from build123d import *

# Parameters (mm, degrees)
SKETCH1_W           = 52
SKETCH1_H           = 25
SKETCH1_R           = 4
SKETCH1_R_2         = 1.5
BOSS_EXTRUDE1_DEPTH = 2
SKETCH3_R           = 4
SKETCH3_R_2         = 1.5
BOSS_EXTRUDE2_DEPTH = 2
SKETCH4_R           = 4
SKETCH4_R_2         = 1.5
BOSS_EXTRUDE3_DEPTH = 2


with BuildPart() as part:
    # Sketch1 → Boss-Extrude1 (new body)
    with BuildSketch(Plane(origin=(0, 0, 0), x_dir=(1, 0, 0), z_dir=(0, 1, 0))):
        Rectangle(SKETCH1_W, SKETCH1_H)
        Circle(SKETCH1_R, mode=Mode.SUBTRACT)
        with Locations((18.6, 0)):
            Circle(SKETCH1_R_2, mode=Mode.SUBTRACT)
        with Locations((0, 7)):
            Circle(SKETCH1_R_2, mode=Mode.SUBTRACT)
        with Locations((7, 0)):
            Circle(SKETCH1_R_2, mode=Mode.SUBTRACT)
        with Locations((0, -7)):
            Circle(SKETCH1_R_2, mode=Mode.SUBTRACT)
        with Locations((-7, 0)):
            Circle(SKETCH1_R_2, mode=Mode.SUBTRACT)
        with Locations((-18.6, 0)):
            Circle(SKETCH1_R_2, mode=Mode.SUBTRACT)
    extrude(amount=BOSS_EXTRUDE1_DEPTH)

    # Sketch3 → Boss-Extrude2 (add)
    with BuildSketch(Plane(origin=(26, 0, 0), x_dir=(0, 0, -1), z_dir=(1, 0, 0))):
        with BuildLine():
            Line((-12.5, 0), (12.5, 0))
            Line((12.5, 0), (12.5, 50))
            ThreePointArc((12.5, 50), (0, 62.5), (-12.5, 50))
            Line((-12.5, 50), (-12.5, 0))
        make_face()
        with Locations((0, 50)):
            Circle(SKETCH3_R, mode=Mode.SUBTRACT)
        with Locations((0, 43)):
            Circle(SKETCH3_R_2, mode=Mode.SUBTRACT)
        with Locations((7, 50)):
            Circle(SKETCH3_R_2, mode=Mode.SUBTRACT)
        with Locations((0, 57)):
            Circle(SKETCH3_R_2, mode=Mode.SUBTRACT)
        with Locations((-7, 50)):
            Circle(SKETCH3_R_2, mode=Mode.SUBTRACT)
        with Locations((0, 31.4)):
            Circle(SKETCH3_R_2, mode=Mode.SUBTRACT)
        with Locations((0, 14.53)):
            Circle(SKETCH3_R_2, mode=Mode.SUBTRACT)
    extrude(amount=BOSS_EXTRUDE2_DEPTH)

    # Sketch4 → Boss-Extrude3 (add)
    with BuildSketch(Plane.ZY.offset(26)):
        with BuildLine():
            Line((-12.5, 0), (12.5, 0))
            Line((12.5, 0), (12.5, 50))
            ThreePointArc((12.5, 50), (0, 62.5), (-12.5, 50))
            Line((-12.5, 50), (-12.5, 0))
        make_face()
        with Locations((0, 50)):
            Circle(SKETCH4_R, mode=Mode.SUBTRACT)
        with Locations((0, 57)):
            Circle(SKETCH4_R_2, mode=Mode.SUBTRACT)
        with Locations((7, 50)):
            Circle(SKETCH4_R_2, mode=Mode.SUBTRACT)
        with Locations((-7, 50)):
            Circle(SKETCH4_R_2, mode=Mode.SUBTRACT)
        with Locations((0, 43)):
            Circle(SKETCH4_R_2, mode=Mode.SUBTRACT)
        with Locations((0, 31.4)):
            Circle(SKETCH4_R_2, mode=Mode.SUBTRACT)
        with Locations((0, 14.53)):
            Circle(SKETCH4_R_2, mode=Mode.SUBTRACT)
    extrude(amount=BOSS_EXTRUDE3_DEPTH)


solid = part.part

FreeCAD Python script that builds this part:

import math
import FreeCAD as App
import Part
import Sketcher
from FreeCAD import Vector


def add_polygon(sketch, points):
    """Adds a closed chain of lines whose ends are joined by coincident constraints."""
    first, n = sketch.GeometryCount, len(points)
    for a, b in zip(points, points[1:] + points[:1]):
        sketch.addGeometry(Part.LineSegment(App.Vector(*a, 0), App.Vector(*b, 0)), False)
    for i in range(n):
        sketch.addConstraint(Sketcher.Constraint("Coincident", first + i, 2, first + (i + 1) % n, 1))

doc = App.newDocument("Part")
params = doc.addObject("Spreadsheet::Sheet", "Params")
for row, (alias, value) in enumerate([
    ("sketch1_diameter", "3 mm"),
    ("sketch1_diameter2", "8 mm"),
    ("sketch1_width", "52 mm"),
    ("sketch1_height", "25 mm"),
    ("pad1_length", "2 mm"),
    ("sketch2_diameter", "3 mm"),
    ("sketch2_diameter2", "8 mm"),
    ("sketch2_radius", "12.5 mm"),
    ("sketch2_width", "50 mm"),
    ("pad2_length", "2 mm"),
    ("sketch3_diameter", "3 mm"),
    ("sketch3_diameter2", "8 mm"),
    ("sketch3_radius", "12.5 mm"),
    ("sketch3_width", "50 mm"),
    ("pad3_length", "2 mm"),
], start=1):
    params.set(f"A{row}", alias)
    params.set(f"B{row}", "=" + value)
    params.setAlias(f"B{row}", alias)

body = doc.addObject("PartDesign::Body", "Body")

# Sketch on XZ plane
sketch1 = body.newObject("Sketcher::SketchObject", "Sketch")
sketch1.AttachmentSupport = (doc.getObject("XZ_Plane"), [""])
sketch1.MapMode = "FlatFace"
add_polygon(sketch1, [(-26, -12.5), (-26, 12.5), (26, 12.5), (26, -12.5)])  # lines 0-3
sketch1.addGeometry(Part.Circle(Vector(0, 7, 0), Vector(0, 0, 1), 1.5), False)  # 4
sketch1.addGeometry(Part.Circle(Vector(-18.6, 0, 0), Vector(0, 0, 1), 1.5), False)  # 5
sketch1.addGeometry(Part.Circle(Vector(-7, 0, 0), Vector(0, 0, 1), 1.5), False)  # 6
sketch1.addGeometry(Part.Circle(Vector(0, 0, 0), Vector(0, 0, 1), 4), False)  # 7
sketch1.addGeometry(Part.Circle(Vector(7, 0, 0), Vector(0, 0, 1), 1.5), False)  # 8
sketch1.addGeometry(Part.Circle(Vector(18.6, 0, 0), Vector(0, 0, 1), 1.5), False)  # 9
sketch1.addGeometry(Part.Circle(Vector(0, -7, 0), Vector(0, 0, 1), 1.5), False)  # 10
sketch1.addConstraint([
    Sketcher.Constraint("Vertical", 0),
    Sketcher.Constraint("Horizontal", 1),
    Sketcher.Constraint("Vertical", 2),
    Sketcher.Constraint("Horizontal", 3),
    Sketcher.Constraint("Coincident", 7, 3, -1, 1),
    Sketcher.Constraint("Equal", 4, 5),
    Sketcher.Constraint("Equal", 5, 6),
    Sketcher.Constraint("Equal", 6, 8),
    Sketcher.Constraint("Equal", 8, 9),
    Sketcher.Constraint("Equal", 9, 10),
    Sketcher.Constraint("Symmetric", 6, 3, 8, 3, -1, 1),
    Sketcher.Constraint("Symmetric", 5, 3, 9, 3, -1, 1),
    Sketcher.Constraint("Symmetric", 4, 3, 10, 3, -1, 1),
    Sketcher.Constraint("Symmetric", 0, 2, 2, 2, -1, 1),
    Sketcher.Constraint("PointOnObject", 4, 3, -2),
    Sketcher.Constraint("PointOnObject", 5, 3, -1),
    Sketcher.Constraint("PointOnObject", 6, 3, -1),
    Sketcher.Constraint("Diameter", 4, 3.0),
    Sketcher.Constraint("Diameter", 7, 8.0),
    Sketcher.Constraint("DistanceX", 1, 1, 1, 2, 52.0),
    Sketcher.Constraint("DistanceY", 0, 1, 0, 2, 25.0),
    Sketcher.Constraint("DistanceY", -1, 1, 4, 3, 7.0),
    Sketcher.Constraint("DistanceX", 6, 3, -1, 1, 7.0),
    Sketcher.Constraint("DistanceX", 5, 3, -1, 1, 18.6),
])
sketch1.setExpression("Constraints[21]", "Params.sketch1_diameter")
sketch1.setExpression("Constraints[22]", "Params.sketch1_diameter2")
sketch1.setExpression("Constraints[23]", "Params.sketch1_width")
sketch1.setExpression("Constraints[24]", "Params.sketch1_height")
pad1 = body.newObject("PartDesign::Pad", "Pad")
pad1.Profile = sketch1
pad1.setExpression("Length", "Params.pad1_length")
pad1.Reversed = True

# Sketch on YZ plane
sketch2 = body.newObject("Sketcher::SketchObject", "Sketch001")
sketch2.AttachmentSupport = (doc.getObject("YZ_Plane"), [""])
sketch2.MapMode = "FlatFace"
sketch2.AttachmentOffset = App.Placement(Vector(0, 0, 26), App.Rotation())
sketch2.addGeometry([
    Part.LineSegment(Vector(0, 12.5, 0), Vector(0, -12.5, 0)),  # 0
    Part.LineSegment(Vector(0, -12.5, 0), Vector(50, -12.5, 0)),  # 1
    Part.ArcOfCircle(Part.Circle(Vector(50, 0, 0), Vector(0, 0, 1), 12.5), math.radians(-90), math.radians(90)),  # 2
    Part.LineSegment(Vector(50, 12.5, 0), Vector(0, 12.5, 0)),  # 3
    Part.Circle(Vector(14.53, 0, 0), Vector(0, 0, 1), 1.5),  # 4
    Part.Circle(Vector(31.4, 0, 0), Vector(0, 0, 1), 1.5),  # 5
    Part.Circle(Vector(50, 7, 0), Vector(0, 0, 1), 1.5),  # 6
    Part.Circle(Vector(43, 0, 0), Vector(0, 0, 1), 1.5),  # 7
    Part.Circle(Vector(50, 0, 0), Vector(0, 0, 1), 4),  # 8
    Part.Circle(Vector(57, 0, 0), Vector(0, 0, 1), 1.5),  # 9
    Part.Circle(Vector(50, -7, 0), Vector(0, 0, 1), 1.5),  # 10
], False)
sketch2.addConstraint([
    Sketcher.Constraint("Coincident", 0, 2, 1, 1),
    Sketcher.Constraint("Tangent", 1, 2, 2, 1),
    Sketcher.Constraint("Tangent", 2, 2, 3, 1),
    Sketcher.Constraint("Coincident", 3, 2, 0, 1),
    Sketcher.Constraint("Vertical", 0),
    Sketcher.Constraint("Horizontal", 1),
    Sketcher.Constraint("Horizontal", 3),
    Sketcher.Constraint("Coincident", 8, 3, 2, 3),
    Sketcher.Constraint("Equal", 4, 5),
    Sketcher.Constraint("Equal", 5, 6),
    Sketcher.Constraint("Equal", 6, 7),
    Sketcher.Constraint("Equal", 7, 9),
    Sketcher.Constraint("Equal", 9, 10),
    Sketcher.Constraint("Symmetric", 0, 2, 3, 2, -1, 1),
    Sketcher.Constraint("Symmetric", 6, 3, 10, 3, -1),
    Sketcher.Constraint("PointOnObject", 4, 3, -1),
    Sketcher.Constraint("PointOnObject", 5, 3, -1),
    Sketcher.Constraint("PointOnObject", 7, 3, -1),
    Sketcher.Constraint("PointOnObject", 9, 3, -1),
    Sketcher.Constraint("Vertical", 2, 3, 6, 3),
    Sketcher.Constraint("Diameter", 4, 3.0),
    Sketcher.Constraint("Diameter", 8, 8.0),
    Sketcher.Constraint("Radius", 2, 12.5),
    Sketcher.Constraint("DistanceX", 1, 1, 1, 2, 50.0),
    Sketcher.Constraint("DistanceY", -1, 1, 6, 3, 7.0),
    Sketcher.Constraint("DistanceX", -1, 1, 7, 3, 43.0),
    Sketcher.Constraint("DistanceX", -1, 1, 9, 3, 57.0),
    Sketcher.Constraint("DistanceX", -1, 1, 5, 3, 31.4),
    Sketcher.Constraint("DistanceX", -1, 1, 4, 3, 14.53),
])
sketch2.setExpression("Constraints[20]", "Params.sketch2_diameter")
sketch2.setExpression("Constraints[21]", "Params.sketch2_diameter2")
sketch2.setExpression("Constraints[22]", "Params.sketch2_radius")
sketch2.setExpression("Constraints[23]", "Params.sketch2_width")
pad2 = body.newObject("PartDesign::Pad", "Pad001")
pad2.Profile = sketch2
pad2.setExpression("Length", "Params.pad2_length")

# Sketch on YZ plane
sketch3 = body.newObject("Sketcher::SketchObject", "Sketch002")
sketch3.AttachmentSupport = (doc.getObject("YZ_Plane"), [""])
sketch3.MapMode = "FlatFace"
sketch3.AttachmentOffset = App.Placement(Vector(0, 0, -26), App.Rotation())
sketch3.addGeometry([
    Part.LineSegment(Vector(0, -12.5, 0), Vector(0, 12.5, 0)),  # 0
    Part.LineSegment(Vector(0, 12.5, 0), Vector(50, 12.5, 0)),  # 1
    Part.ArcOfCircle(Part.Circle(Vector(50, 0, 0), Vector(0, 0, 1), 12.5), math.radians(-90), math.radians(90)),  # 2
    Part.LineSegment(Vector(50, -12.5, 0), Vector(0, -12.5, 0)),  # 3
    Part.Circle(Vector(14.53, 0, 0), Vector(0, 0, 1), 1.5),  # 4
    Part.Circle(Vector(31.4, 0, 0), Vector(0, 0, 1), 1.5),  # 5
    Part.Circle(Vector(50, -7, 0), Vector(0, 0, 1), 1.5),  # 6
    Part.Circle(Vector(43, 0, 0), Vector(0, 0, 1), 1.5),  # 7
    Part.Circle(Vector(50, 0, 0), Vector(0, 0, 1), 4),  # 8
    Part.Circle(Vector(57, 0, 0), Vector(0, 0, 1), 1.5),  # 9
    Part.Circle(Vector(50, 7, 0), Vector(0, 0, 1), 1.5),  # 10
], False)
sketch3.addConstraint([
    Sketcher.Constraint("Coincident", 0, 2, 1, 1),
    Sketcher.Constraint("Tangent", 1, 2, 2, 2),
    Sketcher.Constraint("Tangent", 2, 1, 3, 1),
    Sketcher.Constraint("Coincident", 3, 2, 0, 1),
    Sketcher.Constraint("Vertical", 0),
    Sketcher.Constraint("Horizontal", 1),
    Sketcher.Constraint("Horizontal", 3),
    Sketcher.Constraint("Coincident", 8, 3, 2, 3),
    Sketcher.Constraint("Equal", 4, 5),
    Sketcher.Constraint("Equal", 5, 6),
    Sketcher.Constraint("Equal", 6, 7),
    Sketcher.Constraint("Equal", 7, 9),
    Sketcher.Constraint("Equal", 9, 10),
    Sketcher.Constraint("Symmetric", 0, 2, 3, 2, -1, 1),
    Sketcher.Constraint("Symmetric", 6, 3, 10, 3, -1),
    Sketcher.Constraint("PointOnObject", 4, 3, -1),
    Sketcher.Constraint("PointOnObject", 5, 3, -1),
    Sketcher.Constraint("PointOnObject", 7, 3, -1),
    Sketcher.Constraint("PointOnObject", 9, 3, -1),
    Sketcher.Constraint("Vertical", 2, 3, 6, 3),
    Sketcher.Constraint("Diameter", 4, 3.0),
    Sketcher.Constraint("Diameter", 8, 8.0),
    Sketcher.Constraint("Radius", 2, 12.5),
    Sketcher.Constraint("DistanceX", 1, 1, 1, 2, 50.0),
    Sketcher.Constraint("DistanceY", 6, 3, -1, 1, 7.0),
    Sketcher.Constraint("DistanceX", -1, 1, 7, 3, 43.0),
    Sketcher.Constraint("DistanceX", -1, 1, 9, 3, 57.0),
    Sketcher.Constraint("DistanceX", -1, 1, 5, 3, 31.4),
    Sketcher.Constraint("DistanceX", -1, 1, 4, 3, 14.53),
])
sketch3.setExpression("Constraints[20]", "Params.sketch3_diameter")
sketch3.setExpression("Constraints[21]", "Params.sketch3_diameter2")
sketch3.setExpression("Constraints[22]", "Params.sketch3_radius")
sketch3.setExpression("Constraints[23]", "Params.sketch3_width")
pad3 = body.newObject("PartDesign::Pad", "Pad002")
pad3.Profile = sketch3
pad3.setExpression("Length", "Params.pad3_length")
pad3.Reversed = True

doc.recompute()
